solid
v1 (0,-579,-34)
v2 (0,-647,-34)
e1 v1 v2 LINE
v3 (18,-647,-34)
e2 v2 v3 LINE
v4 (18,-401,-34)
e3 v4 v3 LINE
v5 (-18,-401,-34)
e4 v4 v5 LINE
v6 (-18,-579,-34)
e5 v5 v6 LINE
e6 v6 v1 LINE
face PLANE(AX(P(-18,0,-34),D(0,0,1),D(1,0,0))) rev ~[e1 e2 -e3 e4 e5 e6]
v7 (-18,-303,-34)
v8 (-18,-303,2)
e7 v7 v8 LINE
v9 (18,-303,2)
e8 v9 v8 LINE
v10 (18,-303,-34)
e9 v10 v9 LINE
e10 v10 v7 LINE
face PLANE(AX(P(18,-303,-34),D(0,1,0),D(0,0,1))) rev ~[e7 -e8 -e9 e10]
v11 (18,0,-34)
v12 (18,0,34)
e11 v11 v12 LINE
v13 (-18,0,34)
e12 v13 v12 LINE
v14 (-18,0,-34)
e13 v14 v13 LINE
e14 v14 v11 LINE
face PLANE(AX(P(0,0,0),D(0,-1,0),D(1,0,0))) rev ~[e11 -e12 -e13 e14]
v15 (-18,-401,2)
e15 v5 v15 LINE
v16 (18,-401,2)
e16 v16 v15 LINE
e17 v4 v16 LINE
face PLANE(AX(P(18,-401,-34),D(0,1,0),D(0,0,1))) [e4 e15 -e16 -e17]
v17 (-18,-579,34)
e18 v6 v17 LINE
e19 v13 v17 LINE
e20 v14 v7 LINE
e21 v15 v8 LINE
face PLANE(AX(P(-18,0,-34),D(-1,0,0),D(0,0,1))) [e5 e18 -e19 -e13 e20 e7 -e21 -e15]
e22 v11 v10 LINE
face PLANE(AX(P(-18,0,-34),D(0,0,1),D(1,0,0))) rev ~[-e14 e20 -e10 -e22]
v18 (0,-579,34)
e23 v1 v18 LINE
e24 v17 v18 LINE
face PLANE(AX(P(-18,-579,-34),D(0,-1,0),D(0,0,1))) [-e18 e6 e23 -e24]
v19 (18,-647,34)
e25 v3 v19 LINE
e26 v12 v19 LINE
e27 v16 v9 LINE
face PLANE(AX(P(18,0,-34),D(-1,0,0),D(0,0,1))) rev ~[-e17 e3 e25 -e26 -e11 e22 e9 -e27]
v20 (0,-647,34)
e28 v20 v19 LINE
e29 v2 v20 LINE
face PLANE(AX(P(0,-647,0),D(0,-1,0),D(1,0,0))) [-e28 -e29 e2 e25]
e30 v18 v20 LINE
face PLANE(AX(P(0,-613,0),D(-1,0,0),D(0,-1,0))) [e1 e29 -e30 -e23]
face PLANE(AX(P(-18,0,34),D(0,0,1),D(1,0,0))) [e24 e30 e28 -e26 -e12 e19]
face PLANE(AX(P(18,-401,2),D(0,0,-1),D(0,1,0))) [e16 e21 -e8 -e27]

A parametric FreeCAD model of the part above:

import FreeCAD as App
import Part
import Sketcher
from FreeCAD import Vector
Q = App.Units.Quantity


def add_polygon(sketch, points):
    """Adds a closed chain of lines whose ends are joined by coincident constraints."""
    first, n = sketch.GeometryCount, len(points)
    for a, b in zip(points, points[1:] + points[:1]):
        sketch.addGeometry(Part.LineSegment(App.Vector(*a, 0), App.Vector(*b, 0)), False)
    for i in range(n):
        sketch.addConstraint(Sketcher.Constraint("Coincident", first + i, 2, first + (i + 1) % n, 1))

doc = App.newDocument("Part")
body = doc.addObject("PartDesign::Body", "Body")

# Sketch on XZ plane
sketch1 = doc.addObject("Sketcher::SketchObject", "Sketch")
body.addObject(sketch1)
sketch1.AttachmentSupport = (doc.XZ_Plane, [""])
sketch1.MapMode = "FlatFace"
add_polygon(sketch1, [(-18, 34), (-18, -34), (18, -34), (18, 34)])  # lines 0-3
sketch1.addConstraint([
    Sketcher.Constraint("Vertical", 0),
    Sketcher.Constraint("Horizontal", 1),
    Sketcher.Constraint("Vertical", 2),
    Sketcher.Constraint("Horizontal", 3),
    Sketcher.Constraint("Symmetric", 0, 2, 2, 2, -1, 1),
    Sketcher.Constraint("DistanceX", 1, 1, 1, 2, Q("36 mm")),
    Sketcher.Constraint("DistanceY", 0, 2, 0, 1, Q("68 mm")),
])
pad1 = doc.addObject("PartDesign::Pad", "Pad")
body.addObject(pad1)
pad1.Profile = sketch1
pad1.Length = 647

# Sketch on YZ plane
sketch2 = doc.addObject("Sketcher::SketchObject", "Sketch001")
body.addObject(sketch2)
sketch2.AttachmentSupport = (doc.YZ_Plane, [""])
sketch2.MapMode = "FlatFace"
sketch2.AttachmentOffset = App.Placement(Vector(0, 0, 18), App.Rotation())
add_polygon(sketch2, [(-401, 2), (-401, -34), (-303, -34), (-303, 2)])  # lines 0-3
sketch2.addConstraint([
    Sketcher.Constraint("Vertical", 0),
    Sketcher.Constraint("Horizontal", 1),
    Sketcher.Constraint("Vertical", 2),
    Sketcher.Constraint("Horizontal", 3),
    Sketcher.Constraint("DistanceX", 1, 1, 1, 2, Q("98 mm")),
    Sketcher.Constraint("DistanceY", 0, 2, 0, 1, Q("36 mm")),
    Sketcher.Constraint("DistanceX", 0, 2, -1, 1, Q("401 mm")),
    Sketcher.Constraint("DistanceY", 0, 2, -1, 1, Q("34 mm")),
])
pocket1 = doc.addObject("PartDesign::Pocket", "Pocket")
body.addObject(pocket1)
pocket1.Profile = sketch2
pocket1.Type = "ThroughAll"

# Sketch on YZ plane
sketch3 = doc.addObject("Sketcher::SketchObject", "Sketch002")
body.addObject(sketch3)
sketch3.AttachmentSupport = (doc.YZ_Plane, [""])
sketch3.MapMode = "FlatFace"
sketch3.AttachmentOffset = App.Placement(Vector(0, 0, -18), App.Rotation())
add_polygon(sketch3, [(-579, 34), (-579, -34), (-647, -34), (-647, 34)])  # lines 0-3
sketch3.addConstraint([
    Sketcher.Constraint("Vertical", 0),
    Sketcher.Constraint("Horizontal", 1),
    Sketcher.Constraint("Vertical", 2),
    Sketcher.Constraint("Horizontal", 3),
    Sketcher.Constraint("Equal", 3, 0),
    Sketcher.Constraint("DistanceX", 1, 2, 1, 1, Q("68 mm")),
    Sketcher.Constraint("DistanceX", 0, 2, -1, 1, Q("579 mm")),
    Sketcher.Constraint("DistanceY", 0, 2, -1, 1, Q("34 mm")),
])
pocket2 = doc.addObject("PartDesign::Pocket", "Pocket001")
body.addObject(pocket2)
pocket2.Profile = sketch3
pocket2.Length = 18
pocket2.Reversed = True

doc.recompute()
